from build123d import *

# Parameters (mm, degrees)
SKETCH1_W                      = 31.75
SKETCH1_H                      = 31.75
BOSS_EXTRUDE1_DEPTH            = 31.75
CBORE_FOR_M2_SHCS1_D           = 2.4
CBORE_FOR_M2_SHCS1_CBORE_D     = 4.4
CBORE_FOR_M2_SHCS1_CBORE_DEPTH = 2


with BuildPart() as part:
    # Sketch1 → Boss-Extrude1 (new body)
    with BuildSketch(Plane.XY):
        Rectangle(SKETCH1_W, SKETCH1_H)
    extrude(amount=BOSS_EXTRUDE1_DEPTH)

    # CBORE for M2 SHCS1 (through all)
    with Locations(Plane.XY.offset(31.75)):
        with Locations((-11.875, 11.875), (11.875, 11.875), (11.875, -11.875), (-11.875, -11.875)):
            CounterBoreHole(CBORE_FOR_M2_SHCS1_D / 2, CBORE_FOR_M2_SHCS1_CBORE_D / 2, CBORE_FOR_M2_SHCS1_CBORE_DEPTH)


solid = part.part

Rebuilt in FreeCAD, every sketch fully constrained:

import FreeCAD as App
import Part
import Sketcher
from FreeCAD import Vector
Q = App.Units.Quantity

doc = App.newDocument("Part")
body = doc.addObject("PartDesign::Body", "Body")

# Sketch on XY plane
sketch1 = doc.addObject("Sketcher::SketchObject", "Sketch")
body.addObject(sketch1)
sketch1.AttachmentSupport = (doc.XY_Plane, [""])
sketch1.MapMode = "FlatFace"
sketch1.addGeometry(Part.LineSegment(Vector(-15.875, 15.875, 0), Vector(-15.875, -15.875, 0)), False)
sketch1.addGeometry(Part.LineSegment(Vector(-15.875, -15.875, 0), Vector(15.875, -15.875, 0)), False)
sketch1.addGeometry(Part.LineSegment(Vector(15.875, -15.875, 0), Vector(15.875, 15.875, 0)), False)
sketch1.addGeometry(Part.LineSegment(Vector(15.875, 15.875, 0), Vector(-15.875, 15.875, 0)), False)
sketch1.addConstraint(Sketcher.Constraint("Coincident", 0, 2, 1, 1))
sketch1.addConstraint(Sketcher.Constraint("Coincident", 1, 2, 2, 1))
sketch1.addConstraint(Sketcher.Constraint("Coincident", 2, 2, 3, 1))
sketch1.addConstraint(Sketcher.Constraint("Coincident", 3, 2, 0, 1))
sketch1.addConstraint(Sketcher.Constraint("Vertical", 0))
sketch1.addConstraint(Sketcher.Constraint("Horizontal", 1))
sketch1.addConstraint(Sketcher.Constraint("Vertical", 2))
sketch1.addConstraint(Sketcher.Constraint("Horizontal", 3))
sketch1.addConstraint(Sketcher.Constraint("Symmetric", 0, 2, 2, 2, -1, 1))
sketch1.addConstraint(Sketcher.Constraint("Equal", 3, 0))
sketch1.addConstraint(Sketcher.Constraint("DistanceX", 1, 1, 1, 2, Q("31.75 mm")))
pad1 = doc.addObject("PartDesign::Pad", "Pad")
body.addObject(pad1)
pad1.Profile = sketch1
pad1.Length = 31.75

# Sketch on XY plane
sketch2 = doc.addObject("Sketcher::SketchObject", "Sketch001")
body.addObject(sketch2)
sketch2.AttachmentSupport = (doc.XY_Plane, [""])
sketch2.MapMode = "FlatFace"
sketch2.AttachmentOffset = App.Placement(Vector(0, 0, 31.75), App.Rotation())
sketch2.addGeometry(Part.Circle(Vector(-11.875, 11.875, 0), Vector(0, 0, 1), 1.2), False)
sketch2.addGeometry(Part.Circle(Vector(11.875, 11.875, 0), Vector(0, 0, 1), 1.2), False)
sketch2.addGeometry(Part.Circle(Vector(11.875, -11.875, 0), Vector(0, 0, 1), 1.2), False)
sketch2.addGeometry(Part.Circle(Vector(-11.875, -11.875, 0), Vector(0, 0, 1), 1.2), False)
sketch2.addConstraint(Sketcher.Constraint("Equal", 0, 1))
sketch2.addConstraint(Sketcher.Constraint("Equal", 1, 2))
sketch2.addConstraint(Sketcher.Constraint("Equal", 2, 3))
sketch2.addConstraint(Sketcher.Constraint("Symmetric", 0, 3, 2, 3, -1, 1))
sketch2.addConstraint(Sketcher.Constraint("Symmetric", 1, 3, 3, 3, -1, 1))
sketch2.addConstraint(Sketcher.Constraint("Symmetric", 0, 3, 1, 3, -2))
sketch2.addConstraint(Sketcher.Constraint("Diameter", 0, Q("2.4 mm")))
sketch2.addConstraint(Sketcher.Constraint("DistanceX", 0, 3, 1, 3, Q("23.75 mm")))
sketch2.addConstraint(Sketcher.Constraint("DistanceY", 2, 3, 1, 3, Q("23.75 mm")))
doc.recompute()
hole = doc.addObject("PartDesign::Hole", "Hole")
body.addObject(hole)
hole.Profile = sketch2
hole.ThreadType = "None"
hole.Diameter = 2.4
hole.DepthType = "ThroughAll"
hole.HoleCutType = "Counterbore"
hole.HoleCutDiameter = 4.4
hole.HoleCutDepth = 2

doc.recompute()
